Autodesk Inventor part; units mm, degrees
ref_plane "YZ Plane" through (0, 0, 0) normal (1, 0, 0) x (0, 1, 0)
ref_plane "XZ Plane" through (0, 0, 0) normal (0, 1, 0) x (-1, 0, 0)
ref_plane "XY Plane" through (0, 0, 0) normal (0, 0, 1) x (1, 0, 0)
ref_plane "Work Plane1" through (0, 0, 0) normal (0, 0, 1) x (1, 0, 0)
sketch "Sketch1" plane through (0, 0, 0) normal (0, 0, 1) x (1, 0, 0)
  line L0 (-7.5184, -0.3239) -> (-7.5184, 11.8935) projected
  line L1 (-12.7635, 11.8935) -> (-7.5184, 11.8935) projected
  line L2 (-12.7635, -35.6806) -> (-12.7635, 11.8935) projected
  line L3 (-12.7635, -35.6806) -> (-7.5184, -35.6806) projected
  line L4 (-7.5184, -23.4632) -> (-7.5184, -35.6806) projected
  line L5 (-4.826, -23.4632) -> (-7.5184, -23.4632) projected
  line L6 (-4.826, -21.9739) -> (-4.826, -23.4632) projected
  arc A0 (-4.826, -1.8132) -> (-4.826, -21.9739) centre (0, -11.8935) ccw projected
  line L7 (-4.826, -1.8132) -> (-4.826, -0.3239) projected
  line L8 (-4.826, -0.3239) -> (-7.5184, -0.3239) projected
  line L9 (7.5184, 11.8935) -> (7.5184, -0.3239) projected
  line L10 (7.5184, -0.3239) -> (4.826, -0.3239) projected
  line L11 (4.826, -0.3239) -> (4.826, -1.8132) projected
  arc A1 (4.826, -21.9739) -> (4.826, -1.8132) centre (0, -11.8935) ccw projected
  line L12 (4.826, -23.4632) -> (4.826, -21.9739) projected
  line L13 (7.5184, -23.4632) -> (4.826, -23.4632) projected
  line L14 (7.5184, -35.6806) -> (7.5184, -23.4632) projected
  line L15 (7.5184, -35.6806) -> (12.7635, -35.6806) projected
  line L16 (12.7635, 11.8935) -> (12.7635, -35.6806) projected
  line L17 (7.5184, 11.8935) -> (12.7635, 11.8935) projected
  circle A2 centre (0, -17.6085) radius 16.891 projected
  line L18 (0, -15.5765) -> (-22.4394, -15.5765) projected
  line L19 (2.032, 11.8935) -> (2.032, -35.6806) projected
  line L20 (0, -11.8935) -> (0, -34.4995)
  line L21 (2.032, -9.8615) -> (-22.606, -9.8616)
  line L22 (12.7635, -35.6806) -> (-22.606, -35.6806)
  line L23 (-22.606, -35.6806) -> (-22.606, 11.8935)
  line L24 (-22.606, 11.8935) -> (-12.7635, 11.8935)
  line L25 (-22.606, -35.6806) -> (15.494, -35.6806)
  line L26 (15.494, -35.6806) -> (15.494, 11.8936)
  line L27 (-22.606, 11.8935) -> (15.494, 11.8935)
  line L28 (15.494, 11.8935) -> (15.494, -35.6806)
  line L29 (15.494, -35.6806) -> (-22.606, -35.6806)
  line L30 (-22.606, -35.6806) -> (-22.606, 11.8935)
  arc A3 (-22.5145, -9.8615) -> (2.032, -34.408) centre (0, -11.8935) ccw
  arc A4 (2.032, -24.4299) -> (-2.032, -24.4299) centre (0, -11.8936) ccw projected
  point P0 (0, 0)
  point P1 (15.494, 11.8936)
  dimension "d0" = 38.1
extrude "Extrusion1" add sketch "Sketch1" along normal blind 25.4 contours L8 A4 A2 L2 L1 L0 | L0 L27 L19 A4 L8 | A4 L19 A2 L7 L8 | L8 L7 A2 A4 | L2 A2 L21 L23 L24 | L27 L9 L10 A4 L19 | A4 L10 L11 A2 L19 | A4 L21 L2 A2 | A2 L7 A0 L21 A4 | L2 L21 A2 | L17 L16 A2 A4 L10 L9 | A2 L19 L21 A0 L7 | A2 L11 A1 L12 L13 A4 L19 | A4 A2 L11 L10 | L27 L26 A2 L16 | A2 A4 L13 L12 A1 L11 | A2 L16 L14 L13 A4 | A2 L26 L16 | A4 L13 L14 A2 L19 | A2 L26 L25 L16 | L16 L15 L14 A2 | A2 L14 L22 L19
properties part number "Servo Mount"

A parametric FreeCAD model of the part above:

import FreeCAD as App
import Part
import Sketcher

V = App.Vector
Q = App.Units.Quantity


def add_polygon(sketch, points):
    """Adds a closed chain of lines whose ends are joined by coincident constraints."""
    first, n = sketch.GeometryCount, len(points)
    for a, b in zip(points, points[1:] + points[:1]):
        sketch.addGeometry(Part.LineSegment(App.Vector(*a, 0), App.Vector(*b, 0)), False)
    for i in range(n):
        sketch.addConstraint(Sketcher.Constraint("Coincident", first + i, 2, first + (i + 1) % n, 1))

doc = App.newDocument("Part")
body = doc.addObject("PartDesign::Body", "Body")

sketch1 = body.newObject("Sketcher::SketchObject", "Sketch")
sketch1.AttachmentSupport = (doc.getObject("XY_Plane"), [""])
sketch1.MapMode = "FlatFace"
add_polygon(sketch1, [(-22.6, 11.9), (-22.6, -9.9), (2, -9.9), (2, -35.7), (15.5, -35.7), (15.5, 11.9), (12.8, 11.9)])
sketch1.addConstraint([
    Sketcher.Constraint("Vertical", 0),
    Sketcher.Constraint("Horizontal", 1),
    Sketcher.Constraint("Vertical", 2),
    Sketcher.Constraint("Horizontal", 3),
    Sketcher.Constraint("Vertical", 4),
    Sketcher.Constraint("Horizontal", 5),
    Sketcher.Constraint("Horizontal", 6),
    Sketcher.Constraint("DistanceX", 0, 2, 3, 2, Q("1.5 in")),
    Sketcher.Constraint("DistanceX", 1, 1, 1, 2, Q("0.97 in")),
    Sketcher.Constraint("DistanceY", 4, 1, 4, 2, Q("1.873 in")),
    Sketcher.Constraint("DistanceX", 0, 2, -1, 1, Q("0.89 in")),
    Sketcher.Constraint("DistanceX", 5, 2, 5, 1, Q("0.1075 in")),
    Sketcher.Constraint("DistanceY", 0, 2, 0, 1, Q("0.8565 in")),
    Sketcher.Constraint("DistanceY", 0, 2, -1, 1, 9.8616),
])
pad1 = body.newObject("PartDesign::Pad", "Pad")
pad1.Profile = sketch1
pad1.Length = Q("1 in")

doc.recompute()
